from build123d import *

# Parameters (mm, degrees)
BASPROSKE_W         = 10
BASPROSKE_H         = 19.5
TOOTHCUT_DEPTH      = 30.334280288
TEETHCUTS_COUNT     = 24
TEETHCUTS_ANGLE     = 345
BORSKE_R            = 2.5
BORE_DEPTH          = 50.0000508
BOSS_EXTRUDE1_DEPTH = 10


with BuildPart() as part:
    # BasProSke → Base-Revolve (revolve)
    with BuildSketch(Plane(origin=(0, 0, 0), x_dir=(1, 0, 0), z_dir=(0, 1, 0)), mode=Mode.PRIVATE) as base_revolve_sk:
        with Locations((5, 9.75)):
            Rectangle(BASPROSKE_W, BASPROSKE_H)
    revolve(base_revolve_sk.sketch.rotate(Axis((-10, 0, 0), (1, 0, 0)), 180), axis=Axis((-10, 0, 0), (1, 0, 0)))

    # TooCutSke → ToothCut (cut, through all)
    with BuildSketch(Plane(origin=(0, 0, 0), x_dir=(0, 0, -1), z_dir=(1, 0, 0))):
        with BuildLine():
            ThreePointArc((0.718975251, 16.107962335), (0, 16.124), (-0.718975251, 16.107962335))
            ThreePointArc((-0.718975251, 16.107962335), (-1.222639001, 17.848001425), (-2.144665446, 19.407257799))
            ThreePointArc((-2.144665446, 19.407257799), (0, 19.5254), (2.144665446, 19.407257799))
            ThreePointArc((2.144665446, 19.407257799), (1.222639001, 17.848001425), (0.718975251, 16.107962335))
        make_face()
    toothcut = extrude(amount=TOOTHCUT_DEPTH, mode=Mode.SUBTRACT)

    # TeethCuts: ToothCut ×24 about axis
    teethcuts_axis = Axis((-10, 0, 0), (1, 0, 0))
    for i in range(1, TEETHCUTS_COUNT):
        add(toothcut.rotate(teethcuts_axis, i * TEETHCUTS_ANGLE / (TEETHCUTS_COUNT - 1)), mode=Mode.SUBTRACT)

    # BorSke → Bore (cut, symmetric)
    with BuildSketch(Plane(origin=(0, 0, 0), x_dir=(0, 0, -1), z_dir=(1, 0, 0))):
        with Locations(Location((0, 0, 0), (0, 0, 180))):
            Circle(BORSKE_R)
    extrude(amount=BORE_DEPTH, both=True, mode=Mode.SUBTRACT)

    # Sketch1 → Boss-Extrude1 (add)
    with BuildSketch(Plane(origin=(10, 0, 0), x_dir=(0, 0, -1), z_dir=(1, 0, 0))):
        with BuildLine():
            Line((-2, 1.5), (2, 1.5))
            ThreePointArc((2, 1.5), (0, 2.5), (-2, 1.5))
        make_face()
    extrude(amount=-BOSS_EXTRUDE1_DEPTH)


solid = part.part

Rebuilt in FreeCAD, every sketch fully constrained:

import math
import FreeCAD as App
import Part
import Sketcher
Q = App.Units.Quantity


def add_polygon(sketch, points):
    """Adds a closed chain of lines whose ends are joined by coincident constraints."""
    first, n = sketch.GeometryCount, len(points)
    for a, b in zip(points, points[1:] + points[:1]):
        sketch.addGeometry(Part.LineSegment(App.Vector(*a, 0), App.Vector(*b, 0)), False)
    for i in range(n):
        sketch.addConstraint(Sketcher.Constraint("Coincident", first + i, 2, first + (i + 1) % n, 1))

doc = App.newDocument("Part")
params = doc.addObject("Spreadsheet::Sheet", "Params")
for row, (alias, value) in enumerate([
    ("sketch1_width", "10 mm"),
    ("sketch1_height", "19.5 mm"),
    ("revolution_angle", "360 deg"),
    ("sketch2_radius", "7.2 mm"),
    ("sketch3_diameter", "5 mm"),
    ("pocket2_length", "100.000102 mm"),
    ("sketch4_radius", "2.5 mm"),
    ("sketch4_height", "4 mm"),
    ("pad1_length", "10 mm"),
], start=1):
    params.set(f"A{row}", alias)
    params.set(f"B{row}", "=" + value)
    params.setAlias(f"B{row}", alias)

body = doc.addObject("PartDesign::Body", "Body")

# Sketch on XZ plane
sketch1 = body.newObject("Sketcher::SketchObject", "Sketch")
sketch1.AttachmentSupport = (doc.getObject("XZ_Plane"), [""])
sketch1.MapMode = "FlatFace"
add_polygon(sketch1, [(0, -19.5), (0, 0), (10, 0), (10, -19.5)])  # lines 0-3
sketch1.addConstraint([
    Sketcher.Constraint("Vertical", 0),
    Sketcher.Constraint("Horizontal", 1),
    Sketcher.Constraint("Vertical", 2),
    Sketcher.Constraint("Horizontal", 3),
    Sketcher.Constraint("Coincident", 0, 2, -1, 1),
    Sketcher.Constraint("DistanceX", 1, 1, 1, 2, Q("10 mm")),
    Sketcher.Constraint("DistanceY", 0, 1, 0, 2, Q("19.5 mm")),
])
sketch1.setExpression("Constraints[9]", "Params.sketch1_width")
sketch1.setExpression("Constraints[10]", "Params.sketch1_height")
revolution = body.newObject("PartDesign::Revolution", "Revolution")
revolution.Profile = sketch1
revolution.ReferenceAxis = (sketch1, ["H_Axis"])
revolution.setExpression("Angle", "Params.revolution_angle")

# Sketch on YZ plane
sketch2 = body.newObject("Sketcher::SketchObject", "Sketch001")
sketch2.AttachmentSupport = (doc.getObject("YZ_Plane"), [""])
sketch2.MapMode = "FlatFace"
sketch2.addGeometry([
    Part.ArcOfCircle(Part.Circle(App.Vector(0, 0, 0), App.Vector(0, 0, 1), 16.124), math.radians(-2.555688), math.radians(2.555688)),
    Part.ArcOfCircle(Part.Circle(App.Vector(14.991983, -7.831963, 0), App.Vector(0, 0, 1), 7.2), math.radians(52.176391), math.radians(81.083372)),
    Part.ArcOfCircle(Part.Circle(App.Vector(0, 0, 0), App.Vector(0, 0, 1), 19.5254), math.radians(-6.306079), math.radians(6.306079)),
    Part.ArcOfCircle(Part.Circle(App.Vector(14.991983, 7.831963, 0), App.Vector(0, 0, 1), 7.2), math.radians(-81.083372), math.radians(-52.176391)),
], False)
sketch2.addConstraint([
    Sketcher.Constraint("Coincident", 0, 1, 1, 2),
    Sketcher.Constraint("Coincident", 1, 1, 2, 1),
    Sketcher.Constraint("Coincident", 2, 2, 3, 2),
    Sketcher.Constraint("Coincident", 3, 1, 0, 2),
    Sketcher.Constraint("Coincident", 0, 3, -1, 1),
    Sketcher.Constraint("Coincident", 2, 3, -1, 1),
    Sketcher.Constraint("Equal", 1, 3),
    Sketcher.Constraint("Symmetric", 1, 3, 3, 3, -1),
    Sketcher.Constraint("Radius", 1, Q("7.2 mm")),
    Sketcher.Constraint("Radius", 0, Q("16.124 mm")),
    Sketcher.Constraint("Radius", 2, Q("19.5254 mm")),
    Sketcher.Constraint("DistanceX", 1, 3, 0, 1, Q("1.115979 mm")),
    Sketcher.Constraint("DistanceY", 1, 1, 3, 3, Q("9.976628 mm")),
])
sketch2.setExpression("Constraints[8]", "Params.sketch2_radius")
pocket1 = body.newObject("PartDesign::Pocket", "Pocket")
pocket1.Profile = sketch2
pocket1.Type = "ThroughAll"
pocket1.Reversed = True
doc.recompute()

polarpattern = body.newObject("PartDesign::PolarPattern", "PolarPattern")
polarpattern.Originals = [pocket1]
polarpattern.Axis = (doc.getObject("X_Axis"), [""])
polarpattern.Angle = 360
polarpattern.Occurrences = 24
body.Tip = polarpattern

# Sketch on YZ plane
sketch3 = body.newObject("Sketcher::SketchObject", "Sketch002")
sketch3.AttachmentSupport = (doc.getObject("YZ_Plane"), [""])
sketch3.MapMode = "FlatFace"
sketch3.addGeometry(Part.Circle(App.Vector(0, 0, 0), App.Vector(0, 0, 1), 2.5), False)
sketch3.addConstraint([
    Sketcher.Constraint("Coincident", 0, 3, -1, 1),
    Sketcher.Constraint("Diameter", 0, Q("5 mm")),
])
sketch3.setExpression("Constraints[1]", "Params.sketch3_diameter")
pocket2 = body.newObject("PartDesign::Pocket", "Pocket001")
pocket2.Profile = sketch3
pocket2.setExpression("Length", "Params.pocket2_length")
pocket2.Midplane = True

# Sketch on YZ plane
sketch4 = body.newObject("Sketcher::SketchObject", "Sketch003")
sketch4.AttachmentSupport = (doc.getObject("YZ_Plane"), [""])
sketch4.MapMode = "FlatFace"
sketch4.AttachmentOffset = App.Placement(App.Vector(0, 0, 10), App.Rotation())
sketch4.addGeometry([
    Part.LineSegment(App.Vector(1.5, 2, 0), App.Vector(1.5, -2, 0)),
    Part.ArcOfCircle(Part.Circle(App.Vector(0, 0, 0), App.Vector(0, 0, 1), 2.5), math.radians(-53.130102), math.radians(53.130102)),
], False)
sketch4.addConstraint([
    Sketcher.Constraint("Coincident", 0, 1, 1, 2),
    Sketcher.Constraint("Coincident", 1, 1, 0, 2),
    Sketcher.Constraint("Vertical", 0),
    Sketcher.Constraint("Coincident", 1, 3, -1, 1),
    Sketcher.Constraint("Radius", 1, Q("2.5 mm")),
    Sketcher.Constraint("DistanceY", 0, 2, 0, 1, Q("4 mm")),
])
sketch4.setExpression("Constraints[4]", "Params.sketch4_radius")
sketch4.setExpression("Constraints[5]", "Params.sketch4_height")
pad1 = body.newObject("PartDesign::Pad", "Pad")
pad1.Profile = sketch4
pad1.setExpression("Length", "Params.pad1_length")
pad1.Reversed = True

doc.recompute()
